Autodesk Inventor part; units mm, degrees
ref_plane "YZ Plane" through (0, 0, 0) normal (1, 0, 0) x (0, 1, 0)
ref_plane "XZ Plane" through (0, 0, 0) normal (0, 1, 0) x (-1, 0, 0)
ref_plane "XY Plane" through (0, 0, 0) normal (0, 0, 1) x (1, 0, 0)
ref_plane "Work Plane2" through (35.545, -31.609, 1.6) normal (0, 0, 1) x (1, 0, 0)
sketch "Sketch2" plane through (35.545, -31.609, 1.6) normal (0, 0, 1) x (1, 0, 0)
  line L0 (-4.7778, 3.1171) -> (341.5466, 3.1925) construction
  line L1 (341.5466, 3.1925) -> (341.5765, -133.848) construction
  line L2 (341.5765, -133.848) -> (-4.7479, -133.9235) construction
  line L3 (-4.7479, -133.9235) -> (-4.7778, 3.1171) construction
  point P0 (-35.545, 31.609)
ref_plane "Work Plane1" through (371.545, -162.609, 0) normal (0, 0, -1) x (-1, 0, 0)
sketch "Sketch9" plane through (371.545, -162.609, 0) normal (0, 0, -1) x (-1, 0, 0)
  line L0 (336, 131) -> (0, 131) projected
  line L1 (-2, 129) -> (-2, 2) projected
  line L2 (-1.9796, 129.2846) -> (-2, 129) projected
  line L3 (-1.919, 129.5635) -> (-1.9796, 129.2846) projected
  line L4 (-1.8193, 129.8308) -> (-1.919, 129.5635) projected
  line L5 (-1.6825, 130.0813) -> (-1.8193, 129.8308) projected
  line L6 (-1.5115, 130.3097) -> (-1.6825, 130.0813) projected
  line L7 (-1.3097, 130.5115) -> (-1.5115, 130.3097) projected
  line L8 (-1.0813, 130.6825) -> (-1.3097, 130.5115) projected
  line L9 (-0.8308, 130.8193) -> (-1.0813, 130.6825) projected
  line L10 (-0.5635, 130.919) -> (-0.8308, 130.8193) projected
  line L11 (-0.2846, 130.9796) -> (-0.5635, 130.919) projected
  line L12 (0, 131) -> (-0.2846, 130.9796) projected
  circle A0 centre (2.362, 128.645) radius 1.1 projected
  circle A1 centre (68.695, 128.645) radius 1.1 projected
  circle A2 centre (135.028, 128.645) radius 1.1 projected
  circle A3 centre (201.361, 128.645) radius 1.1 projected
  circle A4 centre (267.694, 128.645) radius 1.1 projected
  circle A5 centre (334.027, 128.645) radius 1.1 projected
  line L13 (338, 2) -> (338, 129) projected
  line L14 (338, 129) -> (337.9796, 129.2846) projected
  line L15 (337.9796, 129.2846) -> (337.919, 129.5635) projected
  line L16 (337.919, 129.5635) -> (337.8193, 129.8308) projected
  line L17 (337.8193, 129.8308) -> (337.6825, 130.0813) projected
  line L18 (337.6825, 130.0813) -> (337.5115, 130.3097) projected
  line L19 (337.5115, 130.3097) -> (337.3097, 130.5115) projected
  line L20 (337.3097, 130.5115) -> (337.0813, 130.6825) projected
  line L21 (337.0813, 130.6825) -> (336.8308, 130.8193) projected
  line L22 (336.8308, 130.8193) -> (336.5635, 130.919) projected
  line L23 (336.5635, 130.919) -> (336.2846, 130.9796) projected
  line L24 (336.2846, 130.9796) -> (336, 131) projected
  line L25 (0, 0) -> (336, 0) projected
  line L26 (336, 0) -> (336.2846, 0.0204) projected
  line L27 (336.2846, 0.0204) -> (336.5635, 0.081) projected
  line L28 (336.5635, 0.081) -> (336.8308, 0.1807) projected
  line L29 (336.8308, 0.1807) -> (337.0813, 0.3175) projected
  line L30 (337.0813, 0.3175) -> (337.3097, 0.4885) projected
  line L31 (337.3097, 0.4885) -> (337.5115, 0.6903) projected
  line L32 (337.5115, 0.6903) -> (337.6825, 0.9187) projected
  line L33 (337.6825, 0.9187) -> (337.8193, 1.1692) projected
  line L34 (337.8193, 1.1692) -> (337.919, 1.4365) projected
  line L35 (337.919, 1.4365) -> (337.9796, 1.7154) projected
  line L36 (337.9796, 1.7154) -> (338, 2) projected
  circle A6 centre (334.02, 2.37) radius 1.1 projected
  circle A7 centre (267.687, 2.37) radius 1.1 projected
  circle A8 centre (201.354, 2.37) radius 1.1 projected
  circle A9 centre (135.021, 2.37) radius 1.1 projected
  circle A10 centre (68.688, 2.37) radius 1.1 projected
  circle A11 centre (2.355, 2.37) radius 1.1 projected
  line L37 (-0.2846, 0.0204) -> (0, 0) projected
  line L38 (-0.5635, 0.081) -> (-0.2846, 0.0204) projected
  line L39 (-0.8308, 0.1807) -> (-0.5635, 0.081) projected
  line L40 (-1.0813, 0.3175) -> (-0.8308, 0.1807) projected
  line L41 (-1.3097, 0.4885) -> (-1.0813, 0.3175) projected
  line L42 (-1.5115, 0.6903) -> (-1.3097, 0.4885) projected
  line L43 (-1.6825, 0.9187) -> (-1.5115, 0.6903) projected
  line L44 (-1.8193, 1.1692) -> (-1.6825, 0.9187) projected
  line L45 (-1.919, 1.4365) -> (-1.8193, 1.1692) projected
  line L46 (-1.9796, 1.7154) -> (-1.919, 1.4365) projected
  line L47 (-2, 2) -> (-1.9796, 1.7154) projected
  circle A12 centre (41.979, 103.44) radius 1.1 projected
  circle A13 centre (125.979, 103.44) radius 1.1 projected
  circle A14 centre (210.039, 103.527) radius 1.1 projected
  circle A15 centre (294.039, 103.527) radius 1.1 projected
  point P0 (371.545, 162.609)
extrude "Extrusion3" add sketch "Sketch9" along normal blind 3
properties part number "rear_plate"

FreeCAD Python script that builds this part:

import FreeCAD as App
import Part
import Sketcher
from FreeCAD import Vector
Q = App.Units.Quantity

doc = App.newDocument("Part")
params = doc.addObject("Spreadsheet::Sheet", "Params")
for row, (alias, value) in enumerate([
    ("sketch1_diameter", "2.2 mm"),
    ("sketch1_width", "336 mm"),
    ("sketch1_height", "127 mm"),
    ("pad1_length", "3 mm"),
], start=1):
    params.set(f"A{row}", alias)
    params.set(f"B{row}", "=" + value)
    params.setAlias(f"B{row}", alias)

body = doc.addObject("PartDesign::Body", "Body")

# Sketch on XY plane
sketch1 = body.newObject("Sketcher::SketchObject", "Sketch")
sketch1.AttachmentSupport = (doc.getObject("XY_Plane"), [""])
sketch1.MapMode = "FlatFace"
sketch1.addGeometry(Part.LineSegment(Vector(35.26, -31.63, 0), Vector(35.55, -31.61, 0)), False)
sketch1.addGeometry(Part.LineSegment(Vector(35.55, -31.61, 0), Vector(371.55, -31.61, 0)), False)
sketch1.addGeometry(Part.LineSegment(Vector(371.55, -31.61, 0), Vector(371.83, -31.63, 0)), False)
sketch1.addGeometry(Part.LineSegment(Vector(371.83, -31.63, 0), Vector(372.11, -31.69, 0)), False)
sketch1.addGeometry(Part.LineSegment(Vector(372.11, -31.69, 0), Vector(372.38, -31.79, 0)), False)
sketch1.addGeometry(Part.LineSegment(Vector(372.38, -31.79, 0), Vector(372.63, -31.93, 0)), False)
sketch1.addGeometry(Part.LineSegment(Vector(372.63, -31.93, 0), Vector(372.85, -32.1, 0)), False)
sketch1.addGeometry(Part.LineSegment(Vector(372.85, -32.1, 0), Vector(373.06, -32.3, 0)), False)
sketch1.addGeometry(Part.LineSegment(Vector(373.06, -32.3, 0), Vector(373.23, -32.53, 0)), False)
sketch1.addGeometry(Part.LineSegment(Vector(373.23, -32.53, 0), Vector(373.36, -32.78, 0)), False)
sketch1.addGeometry(Part.LineSegment(Vector(373.36, -32.78, 0), Vector(373.46, -33.05, 0)), False)
sketch1.addGeometry(Part.LineSegment(Vector(373.46, -33.05, 0), Vector(373.52, -33.32, 0)), False)
sketch1.addGeometry(Part.LineSegment(Vector(373.52, -33.32, 0), Vector(373.55, -33.61, 0)), False)
sketch1.addGeometry(Part.LineSegment(Vector(373.55, -33.61, 0), Vector(373.55, -160.61, 0)), False)
sketch1.addGeometry(Part.LineSegment(Vector(373.55, -160.61, 0), Vector(373.52, -160.89, 0)), False)
sketch1.addGeometry(Part.LineSegment(Vector(373.52, -160.89, 0), Vector(373.46, -161.17, 0)), False)
sketch1.addGeometry(Part.LineSegment(Vector(373.46, -161.17, 0), Vector(373.36, -161.44, 0)), False)
sketch1.addGeometry(Part.LineSegment(Vector(373.36, -161.44, 0), Vector(373.23, -161.69, 0)), False)
sketch1.addGeometry(Part.LineSegment(Vector(373.23, -161.69, 0), Vector(373.06, -161.92, 0)), False)
sketch1.addGeometry(Part.LineSegment(Vector(373.06, -161.92, 0), Vector(372.85, -162.12, 0)), False)
sketch1.addGeometry(Part.LineSegment(Vector(372.85, -162.12, 0), Vector(372.63, -162.29, 0)), False)
sketch1.addGeometry(Part.LineSegment(Vector(372.63, -162.29, 0), Vector(372.38, -162.43, 0)), False)
sketch1.addGeometry(Part.LineSegment(Vector(372.38, -162.43, 0), Vector(372.11, -162.53, 0)), False)
sketch1.addGeometry(Part.LineSegment(Vector(372.11, -162.53, 0), Vector(371.83, -162.59, 0)), False)
sketch1.addGeometry(Part.LineSegment(Vector(371.83, -162.59, 0), Vector(371.55, -162.61, 0)), False)
sketch1.addGeometry(Part.LineSegment(Vector(371.55, -162.61, 0), Vector(35.55, -162.61, 0)), False)
sketch1.addGeometry(Part.LineSegment(Vector(35.55, -162.61, 0), Vector(35.26, -162.59, 0)), False)
sketch1.addGeometry(Part.LineSegment(Vector(35.26, -162.59, 0), Vector(34.98, -162.53, 0)), False)
sketch1.addGeometry(Part.LineSegment(Vector(34.98, -162.53, 0), Vector(34.71, -162.43, 0)), False)
sketch1.addGeometry(Part.LineSegment(Vector(34.71, -162.43, 0), Vector(34.46, -162.29, 0)), False)
sketch1.addGeometry(Part.LineSegment(Vector(34.46, -162.29, 0), Vector(34.24, -162.12, 0)), False)
sketch1.addGeometry(Part.LineSegment(Vector(34.24, -162.12, 0), Vector(34.03, -161.92, 0)), False)
sketch1.addGeometry(Part.LineSegment(Vector(34.03, -161.92, 0), Vector(33.86, -161.69, 0)), False)
sketch1.addGeometry(Part.LineSegment(Vector(33.86, -161.69, 0), Vector(33.73, -161.44, 0)), False)
sketch1.addGeometry(Part.LineSegment(Vector(33.73, -161.44, 0), Vector(33.63, -161.17, 0)), False)
sketch1.addGeometry(Part.LineSegment(Vector(33.63, -161.17, 0), Vector(33.57, -160.89, 0)), False)
sketch1.addGeometry(Part.LineSegment(Vector(33.57, -160.89, 0), Vector(33.55, -160.61, 0)), False)
sketch1.addGeometry(Part.LineSegment(Vector(33.55, -160.61, 0), Vector(33.55, -33.61, 0)), False)
sketch1.addGeometry(Part.LineSegment(Vector(33.55, -33.61, 0), Vector(33.57, -33.32, 0)), False)
sketch1.addGeometry(Part.LineSegment(Vector(33.57, -33.32, 0), Vector(33.63, -33.05, 0)), False)
sketch1.addGeometry(Part.LineSegment(Vector(33.63, -33.05, 0), Vector(33.73, -32.78, 0)), False)
sketch1.addGeometry(Part.LineSegment(Vector(33.73, -32.78, 0), Vector(33.86, -32.53, 0)), False)
sketch1.addGeometry(Part.LineSegment(Vector(33.86, -32.53, 0), Vector(34.03, -32.3, 0)), False)
sketch1.addGeometry(Part.LineSegment(Vector(34.03, -32.3, 0), Vector(34.24, -32.1, 0)), False)
sketch1.addGeometry(Part.LineSegment(Vector(34.24, -32.1, 0), Vector(34.46, -31.93, 0)), False)
sketch1.addGeometry(Part.LineSegment(Vector(34.46, -31.93, 0), Vector(34.71, -31.79, 0)), False)
sketch1.addGeometry(Part.LineSegment(Vector(34.71, -31.79, 0), Vector(34.98, -31.69, 0)), False)
sketch1.addGeometry(Part.LineSegment(Vector(34.98, -31.69, 0), Vector(35.26, -31.63, 0)), False)
sketch1.addGeometry(Part.Circle(Vector(369.19, -160.24, 0), Vector(0, 0, 1), 1.1), False)
sketch1.addGeometry(Part.Circle(Vector(302.86, -160.24, 0), Vector(0, 0, 1), 1.1), False)
sketch1.addGeometry(Part.Circle(Vector(236.52, -160.24, 0), Vector(0, 0, 1), 1.1), False)
sketch1.addGeometry(Part.Circle(Vector(170.19, -160.24, 0), Vector(0, 0, 1), 1.1), False)
sketch1.addGeometry(Part.Circle(Vector(103.86, -160.24, 0), Vector(0, 0, 1), 1.1), False)
sketch1.addGeometry(Part.Circle(Vector(37.52, -160.24, 0), Vector(0, 0, 1), 1.1), False)
sketch1.addGeometry(Part.Circle(Vector(329.57, -59.17, 0), Vector(0, 0, 1), 1.1), False)
sketch1.addGeometry(Part.Circle(Vector(369.18, -33.96, 0), Vector(0, 0, 1), 1.1), False)
sketch1.addGeometry(Part.Circle(Vector(302.85, -33.96, 0), Vector(0, 0, 1), 1.1), False)
sketch1.addGeometry(Part.Circle(Vector(245.57, -59.17, 0), Vector(0, 0, 1), 1.1), False)
sketch1.addGeometry(Part.Circle(Vector(236.52, -33.96, 0), Vector(0, 0, 1), 1.1), False)
sketch1.addGeometry(Part.Circle(Vector(161.51, -59.08, 0), Vector(0, 0, 1), 1.1), False)
sketch1.addGeometry(Part.Circle(Vector(170.18, -33.96, 0), Vector(0, 0, 1), 1.1), False)
sketch1.addGeometry(Part.Circle(Vector(77.51, -59.08, 0), Vector(0, 0, 1), 1.1), False)
sketch1.addGeometry(Part.Circle(Vector(103.85, -33.96, 0), Vector(0, 0, 1), 1.1), False)
sketch1.addGeometry(Part.Circle(Vector(37.52, -33.96, 0), Vector(0, 0, 1), 1.1), False)
sketch1.addConstraint(Sketcher.Constraint("Coincident", 0, 2, 1, 1))
sketch1.addConstraint(Sketcher.Constraint("Coincident", 1, 2, 2, 1))
sketch1.addConstraint(Sketcher.Constraint("Coincident", 2, 2, 3, 1))
sketch1.addConstraint(Sketcher.Constraint("Coincident", 3, 2, 4, 1))
sketch1.addConstraint(Sketcher.Constraint("Coincident", 4, 2, 5, 1))
sketch1.addConstraint(Sketcher.Constraint("Coincident", 5, 2, 6, 1))
sketch1.addConstraint(Sketcher.Constraint("Coincident", 6, 2, 7, 1))
sketch1.addConstraint(Sketcher.Constraint("Coincident", 7, 2, 8, 1))
sketch1.addConstraint(Sketcher.Constraint("Coincident", 8, 2, 9, 1))
sketch1.addConstraint(Sketcher.Constraint("Coincident", 9, 2, 10, 1))
sketch1.addConstraint(Sketcher.Constraint("Coincident", 10, 2, 11, 1))
sketch1.addConstraint(Sketcher.Constraint("Coincident", 11, 2, 12, 1))
sketch1.addConstraint(Sketcher.Constraint("Coincident", 12, 2, 13, 1))
sketch1.addConstraint(Sketcher.Constraint("Coincident", 13, 2, 14, 1))
sketch1.addConstraint(Sketcher.Constraint("Coincident", 14, 2, 15, 1))
sketch1.addConstraint(Sketcher.Constraint("Coincident", 15, 2, 16, 1))
sketch1.addConstraint(Sketcher.Constraint("Coincident", 16, 2, 17, 1))
sketch1.addConstraint(Sketcher.Constraint("Coincident", 17, 2, 18, 1))
sketch1.addConstraint(Sketcher.Constraint("Coincident", 18, 2, 19, 1))
sketch1.addConstraint(Sketcher.Constraint("Coincident", 19, 2, 20, 1))
sketch1.addConstraint(Sketcher.Constraint("Coincident", 20, 2, 21, 1))
sketch1.addConstraint(Sketcher.Constraint("Coincident", 21, 2, 22, 1))
sketch1.addConstraint(Sketcher.Constraint("Coincident", 22, 2, 23, 1))
sketch1.addConstraint(Sketcher.Constraint("Coincident", 23, 2, 24, 1))
sketch1.addConstraint(Sketcher.Constraint("Coincident", 24, 2, 25, 1))
sketch1.addConstraint(Sketcher.Constraint("Coincident", 25, 2, 26, 1))
sketch1.addConstraint(Sketcher.Constraint("Coincident", 26, 2, 27, 1))
sketch1.addConstraint(Sketcher.Constraint("Coincident", 27, 2, 28, 1))
sketch1.addConstraint(Sketcher.Constraint("Coincident", 28, 2, 29, 1))
sketch1.addConstraint(Sketcher.Constraint("Coincident", 29, 2, 30, 1))
sketch1.addConstraint(Sketcher.Constraint("Coincident", 30, 2, 31, 1))
sketch1.addConstraint(Sketcher.Constraint("Coincident", 31, 2, 32, 1))
sketch1.addConstraint(Sketcher.Constraint("Coincident", 32, 2, 33, 1))
sketch1.addConstraint(Sketcher.Constraint("Coincident", 33, 2, 34, 1))
sketch1.addConstraint(Sketcher.Constraint("Coincident", 34, 2, 35, 1))
sketch1.addConstraint(Sketcher.Constraint("Coincident", 35, 2, 36, 1))
sketch1.addConstraint(Sketcher.Constraint("Coincident", 36, 2, 37, 1))
sketch1.addConstraint(Sketcher.Constraint("Coincident", 37, 2, 38, 1))
sketch1.addConstraint(Sketcher.Constraint("Coincident", 38, 2, 39, 1))
sketch1.addConstraint(Sketcher.Constraint("Coincident", 39, 2, 40, 1))
sketch1.addConstraint(Sketcher.Constraint("Coincident", 40, 2, 41, 1))
sketch1.addConstraint(Sketcher.Constraint("Coincident", 41, 2, 42, 1))
sketch1.addConstraint(Sketcher.Constraint("Coincident", 42, 2, 43, 1))
sketch1.addConstraint(Sketcher.Constraint("Coincident", 43, 2, 44, 1))
sketch1.addConstraint(Sketcher.Constraint("Coincident", 44, 2, 45, 1))
sketch1.addConstraint(Sketcher.Constraint("Coincident", 45, 2, 46, 1))
sketch1.addConstraint(Sketcher.Constraint("Coincident", 46, 2, 47, 1))
sketch1.addConstraint(Sketcher.Constraint("Coincident", 47, 2, 0, 1))
sketch1.addConstraint(Sketcher.Constraint("Horizontal", 1))
sketch1.addConstraint(Sketcher.Constraint("Vertical", 13))
sketch1.addConstraint(Sketcher.Constraint("Horizontal", 25))
sketch1.addConstraint(Sketcher.Constraint("Vertical", 37))
sketch1.addConstraint(Sketcher.Constraint("Equal", 48, 49))
sketch1.addConstraint(Sketcher.Constraint("Equal", 49, 50))
sketch1.addConstraint(Sketcher.Constraint("Equal", 50, 51))
sketch1.addConstraint(Sketcher.Constraint("Equal", 51, 52))
sketch1.addConstraint(Sketcher.Constraint("Equal", 52, 53))
sketch1.addConstraint(Sketcher.Constraint("Equal", 53, 54))
sketch1.addConstraint(Sketcher.Constraint("Equal", 54, 55))
sketch1.addConstraint(Sketcher.Constraint("Equal", 55, 56))
sketch1.addConstraint(Sketcher.Constraint("Equal", 56, 57))
sketch1.addConstraint(Sketcher.Constraint("Equal", 57, 58))
sketch1.addConstraint(Sketcher.Constraint("Equal", 58, 59))
sketch1.addConstraint(Sketcher.Constraint("Equal", 59, 60))
sketch1.addConstraint(Sketcher.Constraint("Equal", 60, 61))
sketch1.addConstraint(Sketcher.Constraint("Equal", 61, 62))
sketch1.addConstraint(Sketcher.Constraint("Equal", 62, 63))
sketch1.addConstraint(Sketcher.Constraint("Perpendicular", 0, 12))
sketch1.addConstraint(Sketcher.Constraint("Perpendicular", 2, 14))
sketch1.addConstraint(Sketcher.Constraint("Perpendicular", 3, 15))
sketch1.addConstraint(Sketcher.Constraint("Perpendicular", 4, 16))
sketch1.addConstraint(Sketcher.Constraint("Perpendicular", 5, 17))
sketch1.addConstraint(Sketcher.Constraint("Perpendicular", 6, 18))
sketch1.addConstraint(Sketcher.Constraint("Perpendicular", 7, 19))
sketch1.addConstraint(Sketcher.Constraint("Perpendicular", 8, 20))
sketch1.addConstraint(Sketcher.Constraint("Perpendicular", 9, 21))
sketch1.addConstraint(Sketcher.Constraint("Perpendicular", 10, 22))
sketch1.addConstraint(Sketcher.Constraint("Perpendicular", 11, 23))
sketch1.addConstraint(Sketcher.Constraint("Perpendicular", 12, 24))
sketch1.addConstraint(Sketcher.Constraint("Perpendicular", 14, 26))
sketch1.addConstraint(Sketcher.Constraint("Perpendicular", 15, 27))
sketch1.addConstraint(Sketcher.Constraint("Perpendicular", 16, 28))
sketch1.addConstraint(Sketcher.Constraint("Perpendicular", 17, 29))
sketch1.addConstraint(Sketcher.Constraint("Perpendicular", 18, 30))
sketch1.addConstraint(Sketcher.Constraint("Perpendicular", 19, 31))
sketch1.addConstraint(Sketcher.Constraint("Perpendicular", 20, 32))
sketch1.addConstraint(Sketcher.Constraint("Perpendicular", 21, 33))
sketch1.addConstraint(Sketcher.Constraint("Perpendicular", 22, 34))
sketch1.addConstraint(Sketcher.Constraint("Perpendicular", 23, 35))
sketch1.addConstraint(Sketcher.Constraint("Perpendicular", 24, 36))
sketch1.addConstraint(Sketcher.Constraint("Perpendicular", 26, 38))
sketch1.addConstraint(Sketcher.Constraint("Perpendicular", 27, 39))
sketch1.addConstraint(Sketcher.Constraint("Perpendicular", 28, 40))
sketch1.addConstraint(Sketcher.Constraint("Perpendicular", 29, 41))
sketch1.addConstraint(Sketcher.Constraint("Perpendicular", 30, 42))
sketch1.addConstraint(Sketcher.Constraint("Perpendicular", 31, 43))
sketch1.addConstraint(Sketcher.Constraint("Perpendicular", 32, 44))
sketch1.addConstraint(Sketcher.Constraint("Perpendicular", 33, 45))
sketch1.addConstraint(Sketcher.Constraint("Perpendicular", 34, 46))
sketch1.addConstraint(Sketcher.Constraint("Perpendicular", 35, 47))
sketch1.addConstraint(Sketcher.Constraint("Horizontal", 48, 3, 49, 3))
sketch1.addConstraint(Sketcher.Constraint("Horizontal", 49, 3, 50, 3))
sketch1.addConstraint(Sketcher.Constraint("Horizontal", 50, 3, 51, 3))
sketch1.addConstraint(Sketcher.Constraint("Horizontal", 51, 3, 52, 3))
sketch1.addConstraint(Sketcher.Constraint("Horizontal", 52, 3, 53, 3))
sketch1.addConstraint(Sketcher.Constraint("Horizontal", 55, 3, 56, 3))
sketch1.addConstraint(Sketcher.Constraint("Horizontal", 54, 3, 57, 3))
sketch1.addConstraint(Sketcher.Constraint("Horizontal", 56, 3, 58, 3))
sketch1.addConstraint(Sketcher.Constraint("Horizontal", 58, 3, 60, 3))
sketch1.addConstraint(Sketcher.Constraint("Horizontal", 59, 3, 61, 3))
sketch1.addConstraint(Sketcher.Constraint("Horizontal", 60, 3, 62, 3))
sketch1.addConstraint(Sketcher.Constraint("Horizontal", 62, 3, 63, 3))
sketch1.addConstraint(Sketcher.Constraint("Horizontal", 23, 2, 26, 2))
sketch1.addConstraint(Sketcher.Constraint("Horizontal", 22, 2, 27, 2))
sketch1.addConstraint(Sketcher.Constraint("Horizontal", 21, 2, 28, 2))
sketch1.addConstraint(Sketcher.Constraint("Horizontal", 20, 2, 29, 2))
sketch1.addConstraint(Sketcher.Constraint("Horizontal", 19, 2, 30, 2))
sketch1.addConstraint(Sketcher.Constraint("Horizontal", 18, 2, 31, 2))
sketch1.addConstraint(Sketcher.Constraint("Horizontal", 17, 2, 32, 2))
sketch1.addConstraint(Sketcher.Constraint("Horizontal", 16, 2, 33, 2))
sketch1.addConstraint(Sketcher.Constraint("Horizontal", 15, 2, 34, 2))
sketch1.addConstraint(Sketcher.Constraint("Horizontal", 14, 2, 35, 2))
sketch1.addConstraint(Sketcher.Constraint("Horizontal", 13, 2, 36, 2))
sketch1.addConstraint(Sketcher.Constraint("Horizontal", 12, 2, 37, 2))
sketch1.addConstraint(Sketcher.Constraint("Horizontal", 11, 2, 38, 2))
sketch1.addConstraint(Sketcher.Constraint("Horizontal", 10, 2, 39, 2))
sketch1.addConstraint(Sketcher.Constraint("Horizontal", 9, 2, 40, 2))
sketch1.addConstraint(Sketcher.Constraint("Horizontal", 8, 2, 41, 2))
sketch1.addConstraint(Sketcher.Constraint("Horizontal", 7, 2, 42, 2))
sketch1.addConstraint(Sketcher.Constraint("Horizontal", 6, 2, 43, 2))
sketch1.addConstraint(Sketcher.Constraint("Horizontal", 5, 2, 44, 2))
sketch1.addConstraint(Sketcher.Constraint("Horizontal", 4, 2, 45, 2))
sketch1.addConstraint(Sketcher.Constraint("Horizontal", 3, 2, 46, 2))
sketch1.addConstraint(Sketcher.Constraint("Horizontal", 2, 2, 47, 2))
sketch1.addConstraint(Sketcher.Constraint("Vertical", 11, 2, 14, 2))
sketch1.addConstraint(Sketcher.Constraint("Vertical", 10, 2, 15, 2))
sketch1.addConstraint(Sketcher.Constraint("Vertical", 9, 2, 16, 2))
sketch1.addConstraint(Sketcher.Constraint("Vertical", 8, 2, 17, 2))
sketch1.addConstraint(Sketcher.Constraint("Vertical", 7, 2, 18, 2))
sketch1.addConstraint(Sketcher.Constraint("Vertical", 6, 2, 19, 2))
sketch1.addConstraint(Sketcher.Constraint("Vertical", 5, 2, 20, 2))
sketch1.addConstraint(Sketcher.Constraint("Vertical", 4, 2, 21, 2))
sketch1.addConstraint(Sketcher.Constraint("Vertical", 3, 2, 22, 2))
sketch1.addConstraint(Sketcher.Constraint("Vertical", 2, 2, 23, 2))
sketch1.addConstraint(Sketcher.Constraint("Vertical", 1, 2, 24, 2))
sketch1.addConstraint(Sketcher.Constraint("Vertical", 0, 2, 25, 2))
sketch1.addConstraint(Sketcher.Constraint("Vertical", 35, 2, 38, 2))
sketch1.addConstraint(Sketcher.Constraint("Vertical", 34, 2, 39, 2))
sketch1.addConstraint(Sketcher.Constraint("Vertical", 33, 2, 40, 2))
sketch1.addConstraint(Sketcher.Constraint("Vertical", 32, 2, 41, 2))
sketch1.addConstraint(Sketcher.Constraint("Vertical", 31, 2, 42, 2))
sketch1.addConstraint(Sketcher.Constraint("Equal", 2, 3))
sketch1.addConstraint(Sketcher.Constraint("Equal", 3, 4))
sketch1.addConstraint(Sketcher.Constraint("Equal", 4, 5))
sketch1.addConstraint(Sketcher.Constraint("Equal", 5, 6))
sketch1.addConstraint(Sketcher.Constraint("Equal", 6, 7))
sketch1.addConstraint(Sketcher.Constraint("Equal", 7, 8))
sketch1.addConstraint(Sketcher.Constraint("Equal", 8, 9))
sketch1.addConstraint(Sketcher.Constraint("Equal", 9, 10))
sketch1.addConstraint(Sketcher.Constraint("Equal", 10, 11))
sketch1.addConstraint(Sketcher.Constraint("Equal", 11, 12))
sketch1.addConstraint(Sketcher.Constraint("Diameter", 48, 2.2))
sketch1.addConstraint(Sketcher.Constraint("DistanceX", 1, 1, 1, 2, 336.0))
sketch1.addConstraint(Sketcher.Constraint("DistanceY", 13, 2, 13, 1, 127.0))
sketch1.addConstraint(Sketcher.Constraint("Angle", 0, Q("4.1 deg")))
sketch1.addConstraint(Sketcher.Constraint("Angle", 3, Q("-12.2588 deg")))
sketch1.addConstraint(Sketcher.Constraint("Angle", 5, Q("-28.6393 deg")))
sketch1.addConstraint(Sketcher.Constraint("DistanceX", -1, 1, 48, 3, 369.19))
sketch1.addConstraint(Sketcher.Constraint("DistanceX", -1, 1, 56, 3, 302.85))
sketch1.addConstraint(Sketcher.Constraint("DistanceY", 3, 2, -1, 1, 31.69))
sketch1.addConstraint(Sketcher.Constraint("DistanceY", 48, 3, -1, 1, 160.239))
sketch1.addConstraint(Sketcher.Constraint("DistanceX", -1, 1, 49, 3, 302.857))
sketch1.addConstraint(Sketcher.Constraint("DistanceX", -1, 1, 50, 3, 236.524))
sketch1.addConstraint(Sketcher.Constraint("DistanceX", -1, 1, 51, 3, 170.191))
sketch1.addConstraint(Sketcher.Constraint("DistanceX", -1, 1, 52, 3, 103.858))
sketch1.addConstraint(Sketcher.Constraint("DistanceX", -1, 1, 53, 3, 37.525))
sketch1.addConstraint(Sketcher.Constraint("DistanceX", -1, 1, 54, 3, 329.566))
sketch1.addConstraint(Sketcher.Constraint("DistanceY", 54, 3, -1, 1, 59.169))
sketch1.addConstraint(Sketcher.Constraint("DistanceX", -1, 1, 55, 3, 369.183))
sketch1.addConstraint(Sketcher.Constraint("DistanceY", 55, 3, -1, 1, 33.964))
sketch1.addConstraint(Sketcher.Constraint("DistanceX", -1, 1, 57, 3, 245.566))
sketch1.addConstraint(Sketcher.Constraint("DistanceX", -1, 1, 58, 3, 236.517))
sketch1.addConstraint(Sketcher.Constraint("DistanceX", -1, 1, 59, 3, 161.506))
sketch1.addConstraint(Sketcher.Constraint("DistanceY", 59, 3, -1, 1, 59.082))
sketch1.addConstraint(Sketcher.Constraint("DistanceX", -1, 1, 60, 3, 170.184))
sketch1.addConstraint(Sketcher.Constraint("DistanceX", -1, 1, 61, 3, 77.506))
sketch1.addConstraint(Sketcher.Constraint("DistanceX", -1, 1, 62, 3, 103.851))
sketch1.addConstraint(Sketcher.Constraint("DistanceX", -1, 1, 63, 3, 37.518))
sketch1.addConstraint(Sketcher.Constraint("DistanceX", -1, 1, 0, 2, 35.545))
sketch1.addConstraint(Sketcher.Constraint("DistanceY", 0, 2, -1, 1, 31.609))
sketch1.addConstraint(Sketcher.Constraint("DistanceX", -1, 1, 10, 2, 373.464))
sketch1.addConstraint(Sketcher.Constraint("DistanceX", -1, 1, 4, 2, 372.3758))
sketch1.setExpression("Constraints[161]", "Params.sketch1_diameter")
sketch1.setExpression("Constraints[162]", "Params.sketch1_width")
sketch1.setExpression("Constraints[163]", "Params.sketch1_height")
pad1 = body.newObject("PartDesign::Pad", "Pad")
pad1.Profile = sketch1
pad1.setExpression("Length", "Params.pad1_length")
pad1.Reversed = True

doc.recompute()
